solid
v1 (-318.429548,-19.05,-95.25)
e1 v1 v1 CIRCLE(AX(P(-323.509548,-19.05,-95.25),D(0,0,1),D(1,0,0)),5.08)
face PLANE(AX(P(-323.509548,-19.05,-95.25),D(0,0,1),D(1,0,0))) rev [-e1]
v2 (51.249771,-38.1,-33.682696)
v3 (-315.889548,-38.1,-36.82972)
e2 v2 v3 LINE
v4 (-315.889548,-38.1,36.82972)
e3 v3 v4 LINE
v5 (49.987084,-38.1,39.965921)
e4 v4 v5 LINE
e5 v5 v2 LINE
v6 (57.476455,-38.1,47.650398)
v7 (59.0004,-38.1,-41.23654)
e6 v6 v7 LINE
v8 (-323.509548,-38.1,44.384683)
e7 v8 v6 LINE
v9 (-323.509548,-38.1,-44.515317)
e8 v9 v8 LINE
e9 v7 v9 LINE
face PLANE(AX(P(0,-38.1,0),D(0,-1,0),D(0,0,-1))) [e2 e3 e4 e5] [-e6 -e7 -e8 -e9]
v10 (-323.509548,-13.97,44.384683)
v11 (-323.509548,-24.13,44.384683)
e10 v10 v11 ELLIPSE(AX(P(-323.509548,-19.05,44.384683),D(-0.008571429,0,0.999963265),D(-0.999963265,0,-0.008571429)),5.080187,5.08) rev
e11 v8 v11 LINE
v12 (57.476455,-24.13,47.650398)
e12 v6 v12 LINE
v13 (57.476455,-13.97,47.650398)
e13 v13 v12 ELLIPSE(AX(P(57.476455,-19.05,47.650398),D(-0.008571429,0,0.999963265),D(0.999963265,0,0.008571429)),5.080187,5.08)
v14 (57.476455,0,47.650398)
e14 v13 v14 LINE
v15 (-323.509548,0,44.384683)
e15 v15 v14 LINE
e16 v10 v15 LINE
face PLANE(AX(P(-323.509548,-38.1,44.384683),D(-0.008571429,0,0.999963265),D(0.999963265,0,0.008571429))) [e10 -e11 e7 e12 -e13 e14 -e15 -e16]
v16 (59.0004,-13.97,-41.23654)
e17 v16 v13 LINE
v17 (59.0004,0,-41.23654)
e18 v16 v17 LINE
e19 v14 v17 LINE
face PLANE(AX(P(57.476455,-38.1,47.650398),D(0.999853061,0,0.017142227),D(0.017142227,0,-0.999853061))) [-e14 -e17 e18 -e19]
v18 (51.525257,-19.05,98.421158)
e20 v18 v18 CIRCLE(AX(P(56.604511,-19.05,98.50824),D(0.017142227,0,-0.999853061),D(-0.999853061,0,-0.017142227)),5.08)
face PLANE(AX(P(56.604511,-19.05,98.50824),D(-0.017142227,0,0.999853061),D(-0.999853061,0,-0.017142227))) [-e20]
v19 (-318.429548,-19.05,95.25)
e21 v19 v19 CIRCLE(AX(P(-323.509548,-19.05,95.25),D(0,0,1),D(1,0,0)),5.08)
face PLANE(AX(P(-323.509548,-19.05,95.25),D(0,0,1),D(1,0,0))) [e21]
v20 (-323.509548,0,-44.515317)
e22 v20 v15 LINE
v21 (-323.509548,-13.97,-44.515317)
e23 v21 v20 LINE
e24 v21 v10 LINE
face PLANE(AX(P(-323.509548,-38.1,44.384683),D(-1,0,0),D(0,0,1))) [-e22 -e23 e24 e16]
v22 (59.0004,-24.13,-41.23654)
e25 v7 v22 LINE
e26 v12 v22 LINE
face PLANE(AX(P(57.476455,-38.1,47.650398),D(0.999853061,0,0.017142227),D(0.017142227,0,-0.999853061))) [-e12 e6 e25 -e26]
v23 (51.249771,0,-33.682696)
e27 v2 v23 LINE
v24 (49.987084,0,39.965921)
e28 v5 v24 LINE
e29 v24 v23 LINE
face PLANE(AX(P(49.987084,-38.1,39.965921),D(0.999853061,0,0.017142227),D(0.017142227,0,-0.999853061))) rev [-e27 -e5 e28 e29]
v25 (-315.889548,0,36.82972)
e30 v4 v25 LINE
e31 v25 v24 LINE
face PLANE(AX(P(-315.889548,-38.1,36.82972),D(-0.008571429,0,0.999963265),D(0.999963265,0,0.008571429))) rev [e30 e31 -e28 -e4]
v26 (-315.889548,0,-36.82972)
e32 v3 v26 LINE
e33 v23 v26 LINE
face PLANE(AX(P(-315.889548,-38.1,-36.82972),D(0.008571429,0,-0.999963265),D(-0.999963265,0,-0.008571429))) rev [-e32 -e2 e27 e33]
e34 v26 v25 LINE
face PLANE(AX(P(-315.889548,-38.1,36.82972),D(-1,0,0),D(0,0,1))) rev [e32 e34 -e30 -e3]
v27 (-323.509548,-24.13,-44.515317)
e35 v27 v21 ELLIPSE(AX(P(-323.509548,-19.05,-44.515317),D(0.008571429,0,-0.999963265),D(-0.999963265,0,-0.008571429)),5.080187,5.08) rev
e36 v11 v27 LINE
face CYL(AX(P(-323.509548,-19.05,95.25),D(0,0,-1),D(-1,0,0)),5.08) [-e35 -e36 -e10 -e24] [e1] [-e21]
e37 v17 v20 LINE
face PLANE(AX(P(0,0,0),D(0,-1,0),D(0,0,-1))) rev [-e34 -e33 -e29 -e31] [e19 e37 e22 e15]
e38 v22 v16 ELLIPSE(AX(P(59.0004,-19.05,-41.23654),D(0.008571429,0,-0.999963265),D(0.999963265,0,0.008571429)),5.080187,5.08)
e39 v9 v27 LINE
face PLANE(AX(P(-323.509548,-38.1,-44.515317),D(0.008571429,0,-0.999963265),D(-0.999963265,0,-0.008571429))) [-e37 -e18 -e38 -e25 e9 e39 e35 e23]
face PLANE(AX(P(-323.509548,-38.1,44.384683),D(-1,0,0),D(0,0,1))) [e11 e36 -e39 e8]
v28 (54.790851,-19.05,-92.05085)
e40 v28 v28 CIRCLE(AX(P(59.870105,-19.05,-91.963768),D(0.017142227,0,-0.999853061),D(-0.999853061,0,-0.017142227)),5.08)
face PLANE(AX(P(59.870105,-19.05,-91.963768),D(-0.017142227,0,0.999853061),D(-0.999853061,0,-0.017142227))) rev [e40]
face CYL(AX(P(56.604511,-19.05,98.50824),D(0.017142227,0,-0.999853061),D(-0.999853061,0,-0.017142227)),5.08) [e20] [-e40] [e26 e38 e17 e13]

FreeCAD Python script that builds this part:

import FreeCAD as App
import Part
import Sketcher
from FreeCAD import Vector
Q = App.Units.Quantity

doc = App.newDocument("Part")
body = doc.addObject("PartDesign::Body", "Body")

sketch1 = body.newObject("Sketcher::SketchObject", "Sketch")
sketch1.AttachmentSupport = (doc.getObject("XZ_Plane"), [""])
sketch1.MapMode = "FlatFace"
sketch1.addGeometry(Part.LineSegment(Vector(-323.509548, 44.384683, 0), Vector(57.476455, 47.650398, 0)), False)
sketch1.addGeometry(Part.LineSegment(Vector(57.476455, 47.650398, 0), Vector(59.0004, -41.23654, 0)), False)
sketch1.addGeometry(Part.LineSegment(Vector(59.0004, -41.23654, 0), Vector(-323.509548, -44.515317, 0)), False)
sketch1.addGeometry(Part.LineSegment(Vector(-323.509548, -44.515317, 0), Vector(-323.509548, 44.384683, 0)), False)
sketch1.addGeometry(Part.LineSegment(Vector(49.987084, 39.965921, 0), Vector(-315.889548, 36.82972, 0)), False)
sketch1.addGeometry(Part.LineSegment(Vector(-315.889548, 36.82972, 0), Vector(-315.889548, -36.82972, 0)), False)
sketch1.addGeometry(Part.LineSegment(Vector(-315.889548, -36.82972, 0), Vector(51.249771, -33.682696, 0)), False)
sketch1.addGeometry(Part.LineSegment(Vector(51.249771, -33.682696, 0), Vector(49.987084, 39.965921, 0)), False)
sketch1.addConstraint(Sketcher.Constraint("Coincident", 0, 2, 1, 1))
sketch1.addConstraint(Sketcher.Constraint("Coincident", 1, 2, 2, 1))
sketch1.addConstraint(Sketcher.Constraint("Coincident", 2, 2, 3, 1))
sketch1.addConstraint(Sketcher.Constraint("Coincident", 3, 2, 0, 1))
sketch1.addConstraint(Sketcher.Constraint("Coincident", 4, 2, 5, 1))
sketch1.addConstraint(Sketcher.Constraint("Coincident", 5, 2, 6, 1))
sketch1.addConstraint(Sketcher.Constraint("Coincident", 6, 2, 7, 1))
sketch1.addConstraint(Sketcher.Constraint("Coincident", 7, 2, 4, 1))
sketch1.addConstraint(Sketcher.Constraint("Vertical", 3))
sketch1.addConstraint(Sketcher.Constraint("Vertical", 5))
sketch1.addConstraint(Sketcher.Constraint("Parallel", 0, 2))
sketch1.addConstraint(Sketcher.Constraint("Parallel", 2, 4))
sketch1.addConstraint(Sketcher.Constraint("Parallel", 4, 6))
sketch1.addConstraint(Sketcher.Constraint("Parallel", 1, 7))
sketch1.addConstraint(Sketcher.Constraint("Distance", 0, Q("15 in")))
sketch1.addConstraint(Sketcher.Constraint("DistanceY", 3, 1, 3, 2, Q("3.5 in")))
sketch1.addConstraint(Sketcher.Constraint("Distance", 1, Q("3.5 in")))
sketch1.addConstraint(Sketcher.Constraint("DistanceX", 3, 2, 4, 2, Q("0.3 in")))
sketch1.addConstraint(Sketcher.Constraint("Distance", 2, Q("15.06 in")))
sketch1.addConstraint(Sketcher.Constraint("DistanceY", -1, 1, 0, 2, Q("1.8759999 in")))
sketch1.addConstraint(Sketcher.Constraint("DistanceY", 5, 2, 5, 1, Q("73.65944 mm")))
sketch1.addConstraint(Sketcher.Constraint("DistanceX", -1, 1, 1, 2, Q("59.0004 mm")))
sketch1.addConstraint(Sketcher.Constraint("DistanceY", 4, 2, 7, 2, Q("3.136201 mm")))
sketch1.addConstraint(Sketcher.Constraint("DistanceY", -1, 1, 4, 2, Q("36.82972 mm")))
pad1 = body.newObject("PartDesign::Pad", "Pad")
pad1.Profile = sketch1
pad1.Length = Q("1.5 in")

sketch2 = body.newObject("Sketcher::SketchObject", "Sketch001")
sketch2.AttachmentSupport = (doc.getObject("XY_Plane"), [""])
sketch2.MapMode = "FlatFace"
sketch2.addGeometry(Part.Circle(Vector(-324, -19, 0), Vector(0, 0, 1), 5), False)
sketch2.addConstraint(Sketcher.Constraint("Diameter", 0, Q("0.4 in")))
sketch2.addConstraint(Sketcher.Constraint("DistanceY", 0, 3, -1, 1, Q("0.75 in")))
sketch2.addConstraint(Sketcher.Constraint("DistanceX", 0, 3, -1, 1, Q("323.509548 mm")))
pad2 = body.newObject("PartDesign::Pad", "Pad001")
pad2.Profile = sketch2
pad2.Length = Q("7.5 in")
pad2.Midplane = True
doc.recompute()

datumplane = body.newObject("PartDesign::Plane", "DatumPlane")
datumplane.Placement = App.Placement(Vector(-132.612352, 0, -1.136719), App.Rotation(Vector(-0.008571429, 0, 0.999963265), Vector(0, -1, 0), Vector(0.999963265, 0, 0.008571429), "ZXY"))
mirrored = body.newObject("PartDesign::Mirrored", "Mirrored")
mirrored.Originals = [pad2]
mirrored.MirrorPlane = (datumplane, [""])
body.Tip = mirrored

doc.recompute()
